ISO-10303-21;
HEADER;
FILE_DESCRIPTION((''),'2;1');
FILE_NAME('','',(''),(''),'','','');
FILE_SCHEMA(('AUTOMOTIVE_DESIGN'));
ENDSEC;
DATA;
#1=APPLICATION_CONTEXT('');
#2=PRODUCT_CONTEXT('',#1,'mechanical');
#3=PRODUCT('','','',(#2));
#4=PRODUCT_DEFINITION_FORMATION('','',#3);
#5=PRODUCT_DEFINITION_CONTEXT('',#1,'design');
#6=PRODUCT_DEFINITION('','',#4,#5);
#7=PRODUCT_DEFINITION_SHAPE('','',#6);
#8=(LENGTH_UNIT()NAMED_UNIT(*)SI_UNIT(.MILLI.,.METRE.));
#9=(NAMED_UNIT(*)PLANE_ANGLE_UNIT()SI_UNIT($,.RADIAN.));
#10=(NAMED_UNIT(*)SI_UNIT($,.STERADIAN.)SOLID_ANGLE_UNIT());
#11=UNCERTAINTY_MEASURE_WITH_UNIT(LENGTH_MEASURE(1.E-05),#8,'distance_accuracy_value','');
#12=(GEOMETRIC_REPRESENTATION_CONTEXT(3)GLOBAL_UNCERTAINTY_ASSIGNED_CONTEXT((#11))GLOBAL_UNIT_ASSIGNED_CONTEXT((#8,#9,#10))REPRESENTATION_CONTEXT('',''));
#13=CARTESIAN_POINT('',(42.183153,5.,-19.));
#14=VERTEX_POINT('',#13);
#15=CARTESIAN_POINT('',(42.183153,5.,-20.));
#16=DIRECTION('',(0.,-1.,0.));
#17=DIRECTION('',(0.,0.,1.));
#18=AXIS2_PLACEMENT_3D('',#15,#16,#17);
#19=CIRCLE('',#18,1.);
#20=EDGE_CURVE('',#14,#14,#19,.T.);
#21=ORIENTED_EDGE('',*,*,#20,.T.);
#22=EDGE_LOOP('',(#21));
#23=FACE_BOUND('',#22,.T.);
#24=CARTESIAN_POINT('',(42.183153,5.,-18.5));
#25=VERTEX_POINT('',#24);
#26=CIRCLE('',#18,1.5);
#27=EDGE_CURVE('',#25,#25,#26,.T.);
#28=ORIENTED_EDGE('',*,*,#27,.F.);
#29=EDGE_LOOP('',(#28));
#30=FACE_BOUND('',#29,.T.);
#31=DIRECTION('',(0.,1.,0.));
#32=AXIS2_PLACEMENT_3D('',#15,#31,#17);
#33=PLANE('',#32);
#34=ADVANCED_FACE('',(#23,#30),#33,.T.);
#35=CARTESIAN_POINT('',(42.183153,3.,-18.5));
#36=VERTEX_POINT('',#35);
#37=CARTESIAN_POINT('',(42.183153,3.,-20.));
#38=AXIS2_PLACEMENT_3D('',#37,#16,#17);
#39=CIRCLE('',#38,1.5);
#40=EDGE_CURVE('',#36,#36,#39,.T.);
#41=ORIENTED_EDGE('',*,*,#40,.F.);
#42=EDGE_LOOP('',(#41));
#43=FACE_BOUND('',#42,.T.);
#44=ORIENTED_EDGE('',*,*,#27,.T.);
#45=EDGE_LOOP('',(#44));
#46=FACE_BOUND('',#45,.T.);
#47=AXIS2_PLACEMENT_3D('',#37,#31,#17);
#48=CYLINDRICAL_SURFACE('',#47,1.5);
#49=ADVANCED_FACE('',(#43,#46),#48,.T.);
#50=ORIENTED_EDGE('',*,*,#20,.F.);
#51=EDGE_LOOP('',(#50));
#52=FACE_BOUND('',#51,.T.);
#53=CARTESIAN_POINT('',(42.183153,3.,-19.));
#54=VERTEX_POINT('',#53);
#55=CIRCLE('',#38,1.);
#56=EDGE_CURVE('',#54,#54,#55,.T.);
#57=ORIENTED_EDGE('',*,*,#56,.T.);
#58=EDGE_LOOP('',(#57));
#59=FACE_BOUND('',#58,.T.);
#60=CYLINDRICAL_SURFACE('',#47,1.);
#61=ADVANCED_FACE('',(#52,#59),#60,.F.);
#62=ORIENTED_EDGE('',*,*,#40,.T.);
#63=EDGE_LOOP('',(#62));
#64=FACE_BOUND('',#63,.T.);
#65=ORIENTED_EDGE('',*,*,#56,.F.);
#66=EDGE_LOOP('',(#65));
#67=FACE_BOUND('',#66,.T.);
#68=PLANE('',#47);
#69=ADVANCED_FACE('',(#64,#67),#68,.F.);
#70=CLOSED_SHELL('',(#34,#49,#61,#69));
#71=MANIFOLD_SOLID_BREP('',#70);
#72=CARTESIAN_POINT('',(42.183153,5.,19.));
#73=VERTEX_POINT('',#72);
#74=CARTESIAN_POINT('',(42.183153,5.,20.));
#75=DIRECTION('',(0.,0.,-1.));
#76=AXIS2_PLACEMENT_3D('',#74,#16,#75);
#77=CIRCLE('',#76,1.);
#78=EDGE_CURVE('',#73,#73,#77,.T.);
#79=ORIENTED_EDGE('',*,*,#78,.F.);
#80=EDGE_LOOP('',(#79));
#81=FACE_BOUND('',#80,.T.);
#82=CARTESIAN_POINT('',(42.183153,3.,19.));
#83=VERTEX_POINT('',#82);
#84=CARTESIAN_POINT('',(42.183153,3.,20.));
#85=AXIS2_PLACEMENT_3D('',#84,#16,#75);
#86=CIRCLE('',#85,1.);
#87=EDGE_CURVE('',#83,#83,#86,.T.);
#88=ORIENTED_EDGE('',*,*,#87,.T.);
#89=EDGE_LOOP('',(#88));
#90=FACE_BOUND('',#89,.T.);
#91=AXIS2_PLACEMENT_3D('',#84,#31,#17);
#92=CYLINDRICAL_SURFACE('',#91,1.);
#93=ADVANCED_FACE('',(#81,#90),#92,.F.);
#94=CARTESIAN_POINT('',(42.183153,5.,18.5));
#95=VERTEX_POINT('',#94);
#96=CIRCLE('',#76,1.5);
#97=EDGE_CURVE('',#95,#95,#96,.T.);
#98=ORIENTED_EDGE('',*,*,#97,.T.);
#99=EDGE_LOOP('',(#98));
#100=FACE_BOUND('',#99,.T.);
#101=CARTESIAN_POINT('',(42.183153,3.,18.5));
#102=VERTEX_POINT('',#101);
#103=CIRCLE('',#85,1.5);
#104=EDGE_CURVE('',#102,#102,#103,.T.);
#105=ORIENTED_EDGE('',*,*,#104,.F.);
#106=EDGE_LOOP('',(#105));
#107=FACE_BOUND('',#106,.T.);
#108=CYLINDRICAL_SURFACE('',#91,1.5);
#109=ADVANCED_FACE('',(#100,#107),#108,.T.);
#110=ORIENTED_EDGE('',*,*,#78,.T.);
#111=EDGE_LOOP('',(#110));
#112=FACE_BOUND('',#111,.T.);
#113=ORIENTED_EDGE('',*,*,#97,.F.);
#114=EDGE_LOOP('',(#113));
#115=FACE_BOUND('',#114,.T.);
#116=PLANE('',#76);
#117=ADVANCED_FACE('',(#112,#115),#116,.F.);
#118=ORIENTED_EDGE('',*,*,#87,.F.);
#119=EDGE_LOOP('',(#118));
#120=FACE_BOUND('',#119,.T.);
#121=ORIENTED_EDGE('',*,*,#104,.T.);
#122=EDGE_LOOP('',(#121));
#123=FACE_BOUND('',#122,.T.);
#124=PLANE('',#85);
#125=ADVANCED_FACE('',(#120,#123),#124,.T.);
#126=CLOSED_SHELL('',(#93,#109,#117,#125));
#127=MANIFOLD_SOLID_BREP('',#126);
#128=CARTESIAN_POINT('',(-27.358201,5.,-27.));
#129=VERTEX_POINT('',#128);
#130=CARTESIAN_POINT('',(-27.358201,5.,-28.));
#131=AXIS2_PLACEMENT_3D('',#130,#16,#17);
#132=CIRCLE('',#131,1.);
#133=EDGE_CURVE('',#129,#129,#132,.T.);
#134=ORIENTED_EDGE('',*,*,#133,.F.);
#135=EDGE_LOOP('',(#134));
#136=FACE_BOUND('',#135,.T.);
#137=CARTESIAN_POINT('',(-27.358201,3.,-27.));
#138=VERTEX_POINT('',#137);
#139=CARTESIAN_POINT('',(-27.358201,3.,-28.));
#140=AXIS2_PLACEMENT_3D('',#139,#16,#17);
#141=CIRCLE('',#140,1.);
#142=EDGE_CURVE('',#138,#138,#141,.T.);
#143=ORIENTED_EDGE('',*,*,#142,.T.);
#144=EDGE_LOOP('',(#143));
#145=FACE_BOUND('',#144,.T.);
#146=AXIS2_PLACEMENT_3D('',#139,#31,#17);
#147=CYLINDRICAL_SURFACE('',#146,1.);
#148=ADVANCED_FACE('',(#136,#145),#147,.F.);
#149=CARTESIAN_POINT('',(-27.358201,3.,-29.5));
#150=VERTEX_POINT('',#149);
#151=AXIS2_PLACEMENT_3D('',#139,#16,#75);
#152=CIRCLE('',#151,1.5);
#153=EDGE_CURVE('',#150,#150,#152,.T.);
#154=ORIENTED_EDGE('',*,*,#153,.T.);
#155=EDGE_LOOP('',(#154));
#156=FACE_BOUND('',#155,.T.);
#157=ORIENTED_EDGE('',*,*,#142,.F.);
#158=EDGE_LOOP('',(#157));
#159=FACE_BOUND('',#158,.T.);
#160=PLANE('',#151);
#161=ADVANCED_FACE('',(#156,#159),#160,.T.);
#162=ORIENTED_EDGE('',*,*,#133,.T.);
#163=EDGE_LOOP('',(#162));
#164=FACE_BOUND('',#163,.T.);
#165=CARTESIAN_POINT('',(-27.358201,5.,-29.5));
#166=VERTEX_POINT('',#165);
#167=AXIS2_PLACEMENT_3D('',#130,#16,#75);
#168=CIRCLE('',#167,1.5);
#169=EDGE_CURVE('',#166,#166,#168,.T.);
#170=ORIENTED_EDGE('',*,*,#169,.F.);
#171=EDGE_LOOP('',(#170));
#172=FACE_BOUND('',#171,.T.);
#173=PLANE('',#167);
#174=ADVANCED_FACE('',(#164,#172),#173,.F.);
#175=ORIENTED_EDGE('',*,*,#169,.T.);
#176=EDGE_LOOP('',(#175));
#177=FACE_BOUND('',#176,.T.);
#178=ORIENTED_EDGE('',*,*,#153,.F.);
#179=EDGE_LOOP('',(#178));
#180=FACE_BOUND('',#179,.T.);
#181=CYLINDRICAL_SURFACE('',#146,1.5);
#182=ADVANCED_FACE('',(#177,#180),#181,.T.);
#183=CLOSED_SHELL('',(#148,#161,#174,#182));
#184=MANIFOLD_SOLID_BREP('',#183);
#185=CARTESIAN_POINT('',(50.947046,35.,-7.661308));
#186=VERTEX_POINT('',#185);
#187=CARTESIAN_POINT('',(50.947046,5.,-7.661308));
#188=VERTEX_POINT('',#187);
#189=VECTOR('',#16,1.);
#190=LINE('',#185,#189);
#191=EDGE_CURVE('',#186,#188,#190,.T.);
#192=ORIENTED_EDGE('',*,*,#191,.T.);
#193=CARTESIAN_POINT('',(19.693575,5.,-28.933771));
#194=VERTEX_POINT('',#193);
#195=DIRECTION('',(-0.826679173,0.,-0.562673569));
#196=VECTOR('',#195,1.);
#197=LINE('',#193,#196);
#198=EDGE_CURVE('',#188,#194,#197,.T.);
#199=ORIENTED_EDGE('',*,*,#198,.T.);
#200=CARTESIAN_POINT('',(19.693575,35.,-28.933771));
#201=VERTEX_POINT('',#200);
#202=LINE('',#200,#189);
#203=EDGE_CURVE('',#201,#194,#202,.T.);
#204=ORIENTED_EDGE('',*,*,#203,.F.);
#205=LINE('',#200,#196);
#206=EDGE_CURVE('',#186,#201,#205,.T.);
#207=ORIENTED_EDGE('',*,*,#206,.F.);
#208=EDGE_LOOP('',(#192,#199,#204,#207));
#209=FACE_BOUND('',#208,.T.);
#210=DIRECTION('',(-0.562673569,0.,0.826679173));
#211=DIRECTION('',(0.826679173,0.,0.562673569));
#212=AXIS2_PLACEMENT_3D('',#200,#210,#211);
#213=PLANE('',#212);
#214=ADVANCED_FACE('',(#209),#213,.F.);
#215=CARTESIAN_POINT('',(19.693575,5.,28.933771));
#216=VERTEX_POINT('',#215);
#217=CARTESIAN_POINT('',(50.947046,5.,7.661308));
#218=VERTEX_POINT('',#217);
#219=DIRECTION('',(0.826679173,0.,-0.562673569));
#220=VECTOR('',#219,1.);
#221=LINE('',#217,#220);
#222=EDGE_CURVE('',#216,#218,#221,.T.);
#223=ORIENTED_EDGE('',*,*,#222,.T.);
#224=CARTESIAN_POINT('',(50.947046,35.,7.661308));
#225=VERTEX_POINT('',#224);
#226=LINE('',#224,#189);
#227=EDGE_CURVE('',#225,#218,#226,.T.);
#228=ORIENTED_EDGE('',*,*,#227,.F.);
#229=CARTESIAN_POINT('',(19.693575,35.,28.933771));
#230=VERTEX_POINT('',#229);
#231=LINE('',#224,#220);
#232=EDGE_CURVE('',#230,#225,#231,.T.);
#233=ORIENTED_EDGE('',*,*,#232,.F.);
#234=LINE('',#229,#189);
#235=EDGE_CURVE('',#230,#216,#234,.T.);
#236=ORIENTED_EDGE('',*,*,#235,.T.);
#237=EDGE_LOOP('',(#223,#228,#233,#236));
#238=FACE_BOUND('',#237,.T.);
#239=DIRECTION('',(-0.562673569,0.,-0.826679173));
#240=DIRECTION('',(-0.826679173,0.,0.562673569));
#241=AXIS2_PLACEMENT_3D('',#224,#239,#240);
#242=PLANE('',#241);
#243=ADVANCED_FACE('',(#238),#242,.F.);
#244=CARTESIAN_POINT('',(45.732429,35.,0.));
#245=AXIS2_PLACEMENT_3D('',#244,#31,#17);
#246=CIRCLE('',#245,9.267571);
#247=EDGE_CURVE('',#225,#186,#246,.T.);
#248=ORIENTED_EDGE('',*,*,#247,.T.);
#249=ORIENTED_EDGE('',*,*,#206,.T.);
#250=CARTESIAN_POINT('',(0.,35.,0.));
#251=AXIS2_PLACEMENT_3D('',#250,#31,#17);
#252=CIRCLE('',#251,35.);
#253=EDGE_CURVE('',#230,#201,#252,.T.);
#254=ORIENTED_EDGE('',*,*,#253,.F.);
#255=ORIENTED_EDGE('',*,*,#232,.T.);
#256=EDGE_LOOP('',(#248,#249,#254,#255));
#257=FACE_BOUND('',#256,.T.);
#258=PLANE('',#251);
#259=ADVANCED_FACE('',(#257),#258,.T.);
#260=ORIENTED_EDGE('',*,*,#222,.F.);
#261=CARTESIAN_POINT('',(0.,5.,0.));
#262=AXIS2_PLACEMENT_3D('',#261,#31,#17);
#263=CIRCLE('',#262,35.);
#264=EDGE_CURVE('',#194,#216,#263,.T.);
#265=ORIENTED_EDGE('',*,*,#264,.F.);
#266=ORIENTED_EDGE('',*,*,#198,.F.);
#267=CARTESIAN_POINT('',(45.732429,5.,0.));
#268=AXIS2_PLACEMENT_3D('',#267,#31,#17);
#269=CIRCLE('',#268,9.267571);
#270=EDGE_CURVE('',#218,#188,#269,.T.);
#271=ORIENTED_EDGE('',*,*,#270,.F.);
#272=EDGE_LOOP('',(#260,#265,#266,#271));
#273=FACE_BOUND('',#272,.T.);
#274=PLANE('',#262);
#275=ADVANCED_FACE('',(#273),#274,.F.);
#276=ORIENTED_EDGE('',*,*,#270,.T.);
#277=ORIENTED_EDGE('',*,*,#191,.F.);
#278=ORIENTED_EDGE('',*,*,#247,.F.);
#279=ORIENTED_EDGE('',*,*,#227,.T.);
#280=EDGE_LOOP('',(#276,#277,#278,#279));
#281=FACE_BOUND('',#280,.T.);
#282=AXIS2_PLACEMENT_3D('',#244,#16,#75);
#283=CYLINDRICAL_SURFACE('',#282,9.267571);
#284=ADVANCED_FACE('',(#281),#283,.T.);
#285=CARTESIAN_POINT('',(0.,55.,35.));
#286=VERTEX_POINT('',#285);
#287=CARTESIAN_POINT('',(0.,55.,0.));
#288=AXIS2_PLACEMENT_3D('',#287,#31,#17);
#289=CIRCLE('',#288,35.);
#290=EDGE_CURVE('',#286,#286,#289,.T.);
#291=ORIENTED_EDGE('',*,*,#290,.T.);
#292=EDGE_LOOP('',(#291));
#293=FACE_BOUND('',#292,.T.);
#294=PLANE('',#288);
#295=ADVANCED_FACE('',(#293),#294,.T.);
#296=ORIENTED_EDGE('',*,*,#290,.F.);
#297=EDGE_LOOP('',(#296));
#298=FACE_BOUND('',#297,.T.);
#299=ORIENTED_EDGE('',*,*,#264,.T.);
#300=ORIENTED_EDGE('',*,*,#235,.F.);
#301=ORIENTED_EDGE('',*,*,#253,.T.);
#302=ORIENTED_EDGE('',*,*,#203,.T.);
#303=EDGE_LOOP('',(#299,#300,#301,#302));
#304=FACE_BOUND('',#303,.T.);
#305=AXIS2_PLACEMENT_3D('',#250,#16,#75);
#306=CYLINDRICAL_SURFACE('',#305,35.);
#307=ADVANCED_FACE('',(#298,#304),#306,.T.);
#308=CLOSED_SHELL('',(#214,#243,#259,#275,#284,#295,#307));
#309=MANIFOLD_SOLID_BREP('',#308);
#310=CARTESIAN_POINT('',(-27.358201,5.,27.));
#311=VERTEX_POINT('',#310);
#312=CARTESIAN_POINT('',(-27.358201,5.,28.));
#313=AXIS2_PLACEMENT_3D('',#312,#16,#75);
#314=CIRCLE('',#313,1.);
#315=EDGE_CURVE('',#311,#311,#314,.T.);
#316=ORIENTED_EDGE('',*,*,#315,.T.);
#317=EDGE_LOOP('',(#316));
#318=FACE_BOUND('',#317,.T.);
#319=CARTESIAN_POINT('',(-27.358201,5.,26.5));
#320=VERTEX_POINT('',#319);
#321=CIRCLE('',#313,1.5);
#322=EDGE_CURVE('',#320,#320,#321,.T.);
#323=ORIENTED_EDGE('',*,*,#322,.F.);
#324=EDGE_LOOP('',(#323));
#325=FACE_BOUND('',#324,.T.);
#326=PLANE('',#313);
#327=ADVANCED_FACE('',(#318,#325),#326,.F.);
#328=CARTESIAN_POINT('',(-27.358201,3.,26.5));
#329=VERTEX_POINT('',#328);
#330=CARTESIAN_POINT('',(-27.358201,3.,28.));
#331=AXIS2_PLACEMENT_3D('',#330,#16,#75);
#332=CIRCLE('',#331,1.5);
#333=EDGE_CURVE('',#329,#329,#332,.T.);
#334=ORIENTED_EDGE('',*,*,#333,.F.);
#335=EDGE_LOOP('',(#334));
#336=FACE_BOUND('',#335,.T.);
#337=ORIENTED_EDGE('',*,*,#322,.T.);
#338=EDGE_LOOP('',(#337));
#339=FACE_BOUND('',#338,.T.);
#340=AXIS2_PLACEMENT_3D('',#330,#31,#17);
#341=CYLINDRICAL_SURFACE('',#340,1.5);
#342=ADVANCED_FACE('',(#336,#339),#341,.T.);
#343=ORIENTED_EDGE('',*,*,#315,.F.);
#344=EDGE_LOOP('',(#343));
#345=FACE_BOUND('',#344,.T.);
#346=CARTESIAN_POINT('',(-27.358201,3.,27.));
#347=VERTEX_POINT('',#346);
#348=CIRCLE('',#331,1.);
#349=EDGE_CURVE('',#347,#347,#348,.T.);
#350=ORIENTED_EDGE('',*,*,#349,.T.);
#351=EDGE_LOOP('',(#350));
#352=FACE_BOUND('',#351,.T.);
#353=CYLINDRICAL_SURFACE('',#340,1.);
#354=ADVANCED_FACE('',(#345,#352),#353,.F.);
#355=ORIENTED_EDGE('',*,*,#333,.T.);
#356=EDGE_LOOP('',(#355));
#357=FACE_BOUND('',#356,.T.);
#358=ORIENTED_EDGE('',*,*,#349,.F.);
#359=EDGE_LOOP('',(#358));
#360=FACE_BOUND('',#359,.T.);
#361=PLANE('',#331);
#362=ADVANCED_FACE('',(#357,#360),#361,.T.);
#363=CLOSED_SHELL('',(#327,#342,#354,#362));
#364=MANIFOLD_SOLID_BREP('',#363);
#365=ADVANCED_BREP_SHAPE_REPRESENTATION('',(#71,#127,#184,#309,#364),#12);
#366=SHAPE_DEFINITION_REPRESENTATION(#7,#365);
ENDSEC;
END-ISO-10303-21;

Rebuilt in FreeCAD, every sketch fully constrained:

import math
import FreeCAD as App
import Part
import Sketcher
from FreeCAD import Vector

doc = App.newDocument("Part")
body = doc.addObject("PartDesign::Body", "Body")

# Sketch on XZ plane
sketch1 = body.newObject("Sketcher::SketchObject", "Sketch")
sketch1.AttachmentSupport = (doc.getObject("XZ_Plane"), [""])
sketch1.MapMode = "FlatFace"
sketch1.AttachmentOffset = App.Placement(Vector(0, 0, -5), App.Rotation())
sketch1.addGeometry([
    Part.LineSegment(Vector(51, -8, 0), Vector(20, -29, 0)),
    Part.ArcOfCircle(Part.Circle(Vector(0, 0, 0), Vector(0, 0, 1), 35), math.radians(56), math.radians(304)),
    Part.LineSegment(Vector(20, 29, 0), Vector(51, 8, 0)),
    Part.ArcOfCircle(Part.Circle(Vector(46, 0, 0), Vector(0, 0, 1), 9), math.radians(-56), math.radians(56)),
], False)
sketch1.addConstraint([
    Sketcher.Constraint("Tangent", 0, 2, 1, 2),
    Sketcher.Constraint("Tangent", 1, 1, 2, 1),
    Sketcher.Constraint("Tangent", 2, 2, 3, 2),
    Sketcher.Constraint("Tangent", 3, 1, 0, 1),
    Sketcher.Constraint("Coincident", 1, 3, -1, 1),
    Sketcher.Constraint("PointOnObject", 3, 3, -1),
    Sketcher.Constraint("Radius", 1, 35.0),
    Sketcher.Constraint("Radius", 3, 9.267571),
    Sketcher.Constraint("DistanceX", -1, 1, 3, 3, 45.732429),
])
pad1 = body.newObject("PartDesign::Pad", "Pad")
pad1.Profile = sketch1
pad1.Length = 30
pad1.Reversed = True

# Sketch on XZ plane
sketch2 = body.newObject("Sketcher::SketchObject", "Sketch001")
sketch2.AttachmentSupport = (doc.getObject("XZ_Plane"), [""])
sketch2.MapMode = "FlatFace"
sketch2.AttachmentOffset = App.Placement(Vector(0, 0, -35), App.Rotation())
sketch2.addGeometry(Part.Circle(Vector(0, 0, 0), Vector(0, 0, 1), 35), False)
sketch2.addConstraint([
    Sketcher.Constraint("Coincident", 0, 3, -1, 1),
    Sketcher.Constraint("Diameter", 0, 70.0),
])
pad2 = body.newObject("PartDesign::Pad", "Pad001")
pad2.Profile = sketch2
pad2.Length = 20
pad2.Reversed = True
body2 = doc.addObject("PartDesign::Body", "Body001")

# Sketch on XZ plane
sketch3 = body2.newObject("Sketcher::SketchObject", "Sketch002")
sketch3.AttachmentSupport = (doc.getObject("XZ_Plane001"), [""])
sketch3.MapMode = "FlatFace"
sketch3.AttachmentOffset = App.Placement(Vector(0, 0, -5), App.Rotation())
sketch3.addGeometry([
    Part.Circle(Vector(42.2, 20, 0), Vector(0, 0, 1), 1.5),
    Part.Circle(Vector(42.2, 20, 0), Vector(0, 0, 1), 1),
], False)
sketch3.addConstraint([
    Sketcher.Constraint("Coincident", 1, 3, 0, 3),
    Sketcher.Constraint("Diameter", 0, 3.0),
    Sketcher.Constraint("Diameter", 1, 2.0),
    Sketcher.Constraint("DistanceY", -1, 1, 0, 3, 20.0),
    Sketcher.Constraint("DistanceX", -1, 1, 0, 3, 42.183153),
])
pad3 = body2.newObject("PartDesign::Pad", "Pad002")
pad3.Profile = sketch3
pad3.Length = 2
body3 = doc.addObject("PartDesign::Body", "Body002")

# Sketch on XZ plane
sketch4 = body3.newObject("Sketcher::SketchObject", "Sketch003")
sketch4.AttachmentSupport = (doc.getObject("XZ_Plane002"), [""])
sketch4.MapMode = "FlatFace"
sketch4.AttachmentOffset = App.Placement(Vector(0, 0, -5), App.Rotation())
sketch4.addGeometry([
    Part.Circle(Vector(-27.4, 28, 0), Vector(0, 0, 1), 1.5),
    Part.Circle(Vector(-27.4, 28, 0), Vector(0, 0, 1), 1),
], False)
sketch4.addConstraint([
    Sketcher.Constraint("Coincident", 1, 3, 0, 3),
    Sketcher.Constraint("Diameter", 0, 3.0),
    Sketcher.Constraint("Diameter", 1, 2.0),
    Sketcher.Constraint("DistanceY", -1, 1, 0, 3, 28.0),
    Sketcher.Constraint("DistanceX", 0, 3, -1, 1, 27.358201),
])
pad4 = body3.newObject("PartDesign::Pad", "Pad003")
pad4.Profile = sketch4
pad4.Length = 2
body4 = doc.addObject("PartDesign::Body", "Body003")

# Sketch on XZ plane
sketch5 = body4.newObject("Sketcher::SketchObject", "Sketch004")
sketch5.AttachmentSupport = (doc.getObject("XZ_Plane003"), [""])
sketch5.MapMode = "FlatFace"
sketch5.AttachmentOffset = App.Placement(Vector(0, 0, -5), App.Rotation())
sketch5.addGeometry([
    Part.Circle(Vector(42.2, -20, 0), Vector(0, 0, 1), 1.5),
    Part.Circle(Vector(42.2, -20, 0), Vector(0, 0, 1), 1),
], False)
sketch5.addConstraint([
    Sketcher.Constraint("Coincident", 1, 3, 0, 3),
    Sketcher.Constraint("Diameter", 0, 3.0),
    Sketcher.Constraint("Diameter", 1, 2.0),
    Sketcher.Constraint("DistanceY", 0, 3, -1, 1, 20.0),
    Sketcher.Constraint("DistanceX", -1, 1, 0, 3, 42.183153),
])
pad5 = body4.newObject("PartDesign::Pad", "Pad004")
pad5.Profile = sketch5
pad5.Length = 2
body5 = doc.addObject("PartDesign::Body", "Body004")

# Sketch on XZ plane
sketch6 = body5.newObject("Sketcher::SketchObject", "Sketch005")
sketch6.AttachmentSupport = (doc.getObject("XZ_Plane004"), [""])
sketch6.MapMode = "FlatFace"
sketch6.AttachmentOffset = App.Placement(Vector(0, 0, -5), App.Rotation())
sketch6.addGeometry([
    Part.Circle(Vector(-27.4, -28, 0), Vector(0, 0, 1), 1.5),
    Part.Circle(Vector(-27.4, -28, 0), Vector(0, 0, 1), 1),
], False)
sketch6.addConstraint([
    Sketcher.Constraint("Coincident", 1, 3, 0, 3),
    Sketcher.Constraint("Diameter", 0, 3.0),
    Sketcher.Constraint("Diameter", 1, 2.0),
    Sketcher.Constraint("DistanceY", 0, 3, -1, 1, 28.0),
    Sketcher.Constraint("DistanceX", 0, 3, -1, 1, 27.358201),
])
pad6 = body5.newObject("PartDesign::Pad", "Pad005")
pad6.Profile = sketch6
pad6.Length = 2

doc.recompute()
